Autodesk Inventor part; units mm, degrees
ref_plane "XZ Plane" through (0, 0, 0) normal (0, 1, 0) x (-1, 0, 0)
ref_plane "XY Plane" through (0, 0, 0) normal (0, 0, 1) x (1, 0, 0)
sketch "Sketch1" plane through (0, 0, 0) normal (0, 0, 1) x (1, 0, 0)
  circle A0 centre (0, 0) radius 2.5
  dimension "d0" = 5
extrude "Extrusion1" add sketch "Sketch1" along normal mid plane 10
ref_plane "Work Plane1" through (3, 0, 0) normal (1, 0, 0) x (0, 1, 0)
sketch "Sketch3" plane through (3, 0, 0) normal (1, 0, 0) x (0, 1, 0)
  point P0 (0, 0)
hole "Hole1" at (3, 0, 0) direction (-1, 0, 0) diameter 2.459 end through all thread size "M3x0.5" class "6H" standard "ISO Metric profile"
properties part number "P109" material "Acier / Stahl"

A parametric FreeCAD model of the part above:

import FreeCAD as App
import Part
import Sketcher

V = App.Vector

doc = App.newDocument("Part")
body = doc.addObject("PartDesign::Body", "Body")

# Sketch on XY plane
sketch1 = doc.addObject("Sketcher::SketchObject", "Sketch")
body.addObject(sketch1)
sketch1.AttachmentSupport = (doc.XY_Plane, [""])
sketch1.MapMode = "FlatFace"
sketch1.addGeometry(Part.Circle(V(0, 0, 0), V(0, 0, 1), 2.5), False)
sketch1.addConstraint([
    Sketcher.Constraint("Coincident", 0, 3, -1, 1),
    Sketcher.Constraint("Diameter", 0, 5.0),
])
pad1 = doc.addObject("PartDesign::Pad", "Pad")
body.addObject(pad1)
pad1.Profile = sketch1
pad1.Length = 10
pad1.Midplane = True

# Sketch on YZ plane
sketch2 = doc.addObject("Sketcher::SketchObject", "Sketch001")
body.addObject(sketch2)
sketch2.AttachmentSupport = (doc.YZ_Plane, [""])
sketch2.MapMode = "FlatFace"
sketch2.AttachmentOffset = App.Placement(V(0, 0, 3), App.Rotation())
sketch2.addGeometry(Part.Circle(V(0, 0, 0), V(0, 0, 1), 1.2), False)
sketch2.addConstraint([
    Sketcher.Constraint("Coincident", 0, 3, -1, 1),
    Sketcher.Constraint("Diameter", 0, 2.459),
])
doc.recompute()
hole = doc.addObject("PartDesign::Hole", "Hole")
body.addObject(hole)
hole.Profile = sketch2
hole.ThreadType = "None"
hole.Diameter = 2.459
hole.DepthType = "ThroughAll"

doc.recompute()
